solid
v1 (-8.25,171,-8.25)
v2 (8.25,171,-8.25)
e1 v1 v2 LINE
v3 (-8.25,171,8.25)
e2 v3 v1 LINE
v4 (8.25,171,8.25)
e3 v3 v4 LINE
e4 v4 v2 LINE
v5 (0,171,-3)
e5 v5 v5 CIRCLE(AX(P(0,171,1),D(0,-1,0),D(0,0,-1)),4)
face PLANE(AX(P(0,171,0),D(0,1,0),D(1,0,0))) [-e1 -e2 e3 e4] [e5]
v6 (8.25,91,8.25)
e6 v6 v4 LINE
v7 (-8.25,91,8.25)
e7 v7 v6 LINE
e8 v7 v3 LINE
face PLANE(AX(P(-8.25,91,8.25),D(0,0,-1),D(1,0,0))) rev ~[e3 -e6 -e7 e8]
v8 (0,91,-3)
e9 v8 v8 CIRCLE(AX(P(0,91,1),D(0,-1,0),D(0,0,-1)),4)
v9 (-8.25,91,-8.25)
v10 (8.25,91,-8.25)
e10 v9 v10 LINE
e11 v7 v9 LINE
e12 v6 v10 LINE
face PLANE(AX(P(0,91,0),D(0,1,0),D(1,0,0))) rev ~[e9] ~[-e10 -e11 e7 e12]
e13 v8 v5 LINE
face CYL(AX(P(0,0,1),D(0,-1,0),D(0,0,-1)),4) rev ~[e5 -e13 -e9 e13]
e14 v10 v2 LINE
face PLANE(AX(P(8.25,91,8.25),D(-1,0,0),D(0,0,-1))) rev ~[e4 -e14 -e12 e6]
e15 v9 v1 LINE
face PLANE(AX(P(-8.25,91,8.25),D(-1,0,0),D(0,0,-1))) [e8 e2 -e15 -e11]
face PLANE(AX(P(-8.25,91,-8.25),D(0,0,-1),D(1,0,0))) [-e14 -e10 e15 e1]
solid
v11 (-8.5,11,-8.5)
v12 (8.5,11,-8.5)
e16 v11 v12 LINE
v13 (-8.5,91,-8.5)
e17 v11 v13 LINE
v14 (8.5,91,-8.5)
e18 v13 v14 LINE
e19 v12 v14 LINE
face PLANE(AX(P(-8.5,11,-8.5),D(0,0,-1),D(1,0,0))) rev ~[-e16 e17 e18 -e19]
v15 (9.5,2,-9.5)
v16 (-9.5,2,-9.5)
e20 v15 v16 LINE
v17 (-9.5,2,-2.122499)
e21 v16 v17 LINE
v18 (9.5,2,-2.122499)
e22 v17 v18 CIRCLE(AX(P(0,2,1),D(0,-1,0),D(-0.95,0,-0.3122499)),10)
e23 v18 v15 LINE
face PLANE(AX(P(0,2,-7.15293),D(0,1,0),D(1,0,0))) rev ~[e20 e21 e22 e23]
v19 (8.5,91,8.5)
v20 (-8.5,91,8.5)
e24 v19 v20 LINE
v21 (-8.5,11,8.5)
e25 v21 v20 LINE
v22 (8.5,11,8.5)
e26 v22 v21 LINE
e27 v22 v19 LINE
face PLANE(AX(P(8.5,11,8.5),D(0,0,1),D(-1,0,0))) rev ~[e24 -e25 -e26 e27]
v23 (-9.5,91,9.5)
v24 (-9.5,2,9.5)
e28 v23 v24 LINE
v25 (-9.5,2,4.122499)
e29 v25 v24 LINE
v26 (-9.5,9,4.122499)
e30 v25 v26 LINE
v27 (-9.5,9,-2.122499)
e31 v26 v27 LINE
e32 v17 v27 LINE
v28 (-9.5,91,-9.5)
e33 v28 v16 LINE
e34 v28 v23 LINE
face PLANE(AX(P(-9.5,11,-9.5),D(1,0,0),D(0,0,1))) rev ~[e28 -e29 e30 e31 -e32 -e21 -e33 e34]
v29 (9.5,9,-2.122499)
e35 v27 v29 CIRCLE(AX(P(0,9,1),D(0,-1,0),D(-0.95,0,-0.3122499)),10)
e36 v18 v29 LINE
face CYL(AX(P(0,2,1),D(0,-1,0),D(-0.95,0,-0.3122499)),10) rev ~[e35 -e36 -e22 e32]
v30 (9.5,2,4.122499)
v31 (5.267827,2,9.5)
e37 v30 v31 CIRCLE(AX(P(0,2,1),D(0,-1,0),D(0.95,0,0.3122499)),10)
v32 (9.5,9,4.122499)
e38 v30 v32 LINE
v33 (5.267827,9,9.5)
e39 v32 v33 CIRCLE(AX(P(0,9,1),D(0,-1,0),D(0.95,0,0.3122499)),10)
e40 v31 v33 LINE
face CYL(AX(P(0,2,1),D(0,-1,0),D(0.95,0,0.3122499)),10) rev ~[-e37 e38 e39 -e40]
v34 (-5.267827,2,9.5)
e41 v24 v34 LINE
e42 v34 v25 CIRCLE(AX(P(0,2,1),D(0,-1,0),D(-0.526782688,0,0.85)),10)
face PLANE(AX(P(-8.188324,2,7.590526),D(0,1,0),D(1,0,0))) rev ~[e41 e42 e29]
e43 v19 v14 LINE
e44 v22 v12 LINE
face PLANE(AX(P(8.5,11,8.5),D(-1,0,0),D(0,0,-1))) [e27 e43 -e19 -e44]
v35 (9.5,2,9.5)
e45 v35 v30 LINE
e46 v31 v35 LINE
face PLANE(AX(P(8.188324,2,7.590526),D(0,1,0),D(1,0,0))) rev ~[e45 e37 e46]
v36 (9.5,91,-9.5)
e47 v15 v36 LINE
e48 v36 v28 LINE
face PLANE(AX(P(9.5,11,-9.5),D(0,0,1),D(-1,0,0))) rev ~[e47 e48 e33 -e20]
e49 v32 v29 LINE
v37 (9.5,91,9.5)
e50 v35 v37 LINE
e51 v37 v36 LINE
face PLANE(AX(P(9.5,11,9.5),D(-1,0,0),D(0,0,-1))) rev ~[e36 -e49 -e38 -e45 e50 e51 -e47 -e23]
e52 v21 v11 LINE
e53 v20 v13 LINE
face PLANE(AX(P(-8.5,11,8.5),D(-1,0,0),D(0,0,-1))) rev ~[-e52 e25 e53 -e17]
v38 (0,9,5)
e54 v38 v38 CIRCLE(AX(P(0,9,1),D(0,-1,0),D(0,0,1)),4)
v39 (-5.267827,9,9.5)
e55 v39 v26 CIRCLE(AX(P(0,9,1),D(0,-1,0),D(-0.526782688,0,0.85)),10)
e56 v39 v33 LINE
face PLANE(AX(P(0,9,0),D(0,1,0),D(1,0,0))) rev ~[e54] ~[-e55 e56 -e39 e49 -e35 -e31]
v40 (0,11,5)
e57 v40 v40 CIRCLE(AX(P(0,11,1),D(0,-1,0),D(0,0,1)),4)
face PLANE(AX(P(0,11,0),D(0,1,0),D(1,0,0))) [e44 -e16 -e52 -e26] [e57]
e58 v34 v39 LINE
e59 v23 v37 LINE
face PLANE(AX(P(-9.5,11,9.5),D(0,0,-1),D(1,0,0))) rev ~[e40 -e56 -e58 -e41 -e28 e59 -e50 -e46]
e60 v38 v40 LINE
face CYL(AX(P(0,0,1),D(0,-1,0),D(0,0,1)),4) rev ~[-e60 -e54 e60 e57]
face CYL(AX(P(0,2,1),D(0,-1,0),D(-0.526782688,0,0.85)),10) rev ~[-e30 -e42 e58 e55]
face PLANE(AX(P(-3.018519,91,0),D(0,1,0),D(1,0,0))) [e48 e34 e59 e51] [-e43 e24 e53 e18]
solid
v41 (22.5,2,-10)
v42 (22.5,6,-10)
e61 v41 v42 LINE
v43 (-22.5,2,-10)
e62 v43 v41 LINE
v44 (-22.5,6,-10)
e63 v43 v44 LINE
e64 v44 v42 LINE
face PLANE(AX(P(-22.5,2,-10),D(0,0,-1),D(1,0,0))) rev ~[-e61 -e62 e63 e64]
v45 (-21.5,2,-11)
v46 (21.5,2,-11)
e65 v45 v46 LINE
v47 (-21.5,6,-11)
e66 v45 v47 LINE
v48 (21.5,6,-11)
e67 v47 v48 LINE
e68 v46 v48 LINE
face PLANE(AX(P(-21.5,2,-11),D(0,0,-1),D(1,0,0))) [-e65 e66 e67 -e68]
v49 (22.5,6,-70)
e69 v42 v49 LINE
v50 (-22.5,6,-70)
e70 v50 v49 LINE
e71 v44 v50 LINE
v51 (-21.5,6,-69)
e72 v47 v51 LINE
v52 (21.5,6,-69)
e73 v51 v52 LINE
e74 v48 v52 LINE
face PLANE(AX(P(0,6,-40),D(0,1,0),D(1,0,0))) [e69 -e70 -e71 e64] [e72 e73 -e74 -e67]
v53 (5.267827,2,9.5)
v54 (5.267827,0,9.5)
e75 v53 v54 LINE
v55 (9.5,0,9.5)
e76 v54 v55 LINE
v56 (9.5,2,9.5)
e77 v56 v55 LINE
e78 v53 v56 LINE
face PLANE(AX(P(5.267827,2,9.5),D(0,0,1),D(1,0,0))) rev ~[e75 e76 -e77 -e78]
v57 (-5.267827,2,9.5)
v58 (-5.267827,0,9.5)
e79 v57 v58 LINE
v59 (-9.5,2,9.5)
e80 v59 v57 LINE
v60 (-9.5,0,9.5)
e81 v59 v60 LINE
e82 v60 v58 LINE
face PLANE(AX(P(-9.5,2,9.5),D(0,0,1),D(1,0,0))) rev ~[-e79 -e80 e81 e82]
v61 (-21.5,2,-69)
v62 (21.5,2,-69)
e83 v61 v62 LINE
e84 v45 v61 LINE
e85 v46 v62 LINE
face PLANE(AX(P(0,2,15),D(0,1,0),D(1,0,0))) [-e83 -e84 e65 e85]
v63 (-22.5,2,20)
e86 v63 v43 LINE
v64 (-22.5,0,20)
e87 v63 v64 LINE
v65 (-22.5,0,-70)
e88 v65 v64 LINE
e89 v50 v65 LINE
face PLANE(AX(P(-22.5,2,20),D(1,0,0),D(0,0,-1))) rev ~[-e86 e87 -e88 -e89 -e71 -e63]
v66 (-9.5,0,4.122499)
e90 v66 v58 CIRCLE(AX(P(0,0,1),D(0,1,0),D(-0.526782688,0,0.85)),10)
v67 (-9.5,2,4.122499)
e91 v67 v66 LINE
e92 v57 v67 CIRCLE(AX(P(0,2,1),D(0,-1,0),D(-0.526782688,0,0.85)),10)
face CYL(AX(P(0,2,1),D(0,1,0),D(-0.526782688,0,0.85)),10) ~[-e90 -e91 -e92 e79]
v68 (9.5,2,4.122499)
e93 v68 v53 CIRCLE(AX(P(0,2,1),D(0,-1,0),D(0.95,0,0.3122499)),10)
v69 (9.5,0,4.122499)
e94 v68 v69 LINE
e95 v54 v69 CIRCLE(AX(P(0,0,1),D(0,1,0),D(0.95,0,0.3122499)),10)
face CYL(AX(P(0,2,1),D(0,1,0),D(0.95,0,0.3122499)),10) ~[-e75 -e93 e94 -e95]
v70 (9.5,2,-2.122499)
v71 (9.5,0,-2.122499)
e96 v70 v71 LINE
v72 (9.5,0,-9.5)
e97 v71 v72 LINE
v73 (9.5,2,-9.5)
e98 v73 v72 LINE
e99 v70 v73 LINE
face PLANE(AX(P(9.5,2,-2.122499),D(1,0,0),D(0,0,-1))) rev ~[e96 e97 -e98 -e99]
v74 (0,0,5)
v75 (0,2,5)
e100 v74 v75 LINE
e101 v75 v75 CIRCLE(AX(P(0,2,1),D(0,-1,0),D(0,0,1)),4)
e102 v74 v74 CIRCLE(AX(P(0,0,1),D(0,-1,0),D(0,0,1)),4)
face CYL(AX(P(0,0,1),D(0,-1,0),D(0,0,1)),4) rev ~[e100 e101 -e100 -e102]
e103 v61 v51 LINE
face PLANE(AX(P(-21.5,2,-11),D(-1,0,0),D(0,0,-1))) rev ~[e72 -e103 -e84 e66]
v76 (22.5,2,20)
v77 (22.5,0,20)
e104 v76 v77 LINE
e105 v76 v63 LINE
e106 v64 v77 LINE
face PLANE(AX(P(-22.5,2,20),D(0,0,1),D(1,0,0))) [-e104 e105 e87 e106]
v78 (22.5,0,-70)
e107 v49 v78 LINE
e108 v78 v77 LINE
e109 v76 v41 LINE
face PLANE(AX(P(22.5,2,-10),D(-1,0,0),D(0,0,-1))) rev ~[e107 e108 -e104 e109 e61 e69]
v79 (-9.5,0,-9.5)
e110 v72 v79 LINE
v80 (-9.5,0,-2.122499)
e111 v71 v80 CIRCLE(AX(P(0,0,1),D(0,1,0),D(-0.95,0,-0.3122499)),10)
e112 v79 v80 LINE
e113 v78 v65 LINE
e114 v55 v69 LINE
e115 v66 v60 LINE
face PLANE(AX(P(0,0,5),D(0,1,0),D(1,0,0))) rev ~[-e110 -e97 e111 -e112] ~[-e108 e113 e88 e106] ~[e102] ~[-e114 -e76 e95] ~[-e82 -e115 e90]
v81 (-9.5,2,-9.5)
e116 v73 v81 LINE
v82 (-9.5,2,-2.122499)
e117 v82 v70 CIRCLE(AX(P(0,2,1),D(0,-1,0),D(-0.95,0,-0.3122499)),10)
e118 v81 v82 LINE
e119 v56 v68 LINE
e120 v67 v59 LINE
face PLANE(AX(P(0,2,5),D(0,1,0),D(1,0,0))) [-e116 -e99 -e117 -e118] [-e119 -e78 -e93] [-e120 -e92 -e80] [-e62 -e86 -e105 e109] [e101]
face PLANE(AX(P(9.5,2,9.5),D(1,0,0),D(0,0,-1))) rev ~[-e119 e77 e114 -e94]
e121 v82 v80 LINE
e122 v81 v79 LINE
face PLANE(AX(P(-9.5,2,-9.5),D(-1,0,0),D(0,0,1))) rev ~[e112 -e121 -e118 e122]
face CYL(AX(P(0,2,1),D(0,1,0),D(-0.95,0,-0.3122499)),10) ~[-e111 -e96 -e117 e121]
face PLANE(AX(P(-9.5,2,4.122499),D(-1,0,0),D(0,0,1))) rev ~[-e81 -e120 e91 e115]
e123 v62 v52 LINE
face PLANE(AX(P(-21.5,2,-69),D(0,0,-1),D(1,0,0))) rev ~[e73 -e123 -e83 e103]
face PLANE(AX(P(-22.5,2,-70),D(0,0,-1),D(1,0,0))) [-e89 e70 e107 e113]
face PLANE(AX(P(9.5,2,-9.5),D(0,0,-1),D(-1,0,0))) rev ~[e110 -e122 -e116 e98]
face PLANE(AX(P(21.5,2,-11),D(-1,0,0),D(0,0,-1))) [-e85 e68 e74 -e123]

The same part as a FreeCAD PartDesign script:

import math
import FreeCAD as App
import Part
import Sketcher

V = App.Vector
Q = App.Units.Quantity


def add_polygon(sketch, points):
    """Adds a closed chain of lines whose ends are joined by coincident constraints."""
    first, n = sketch.GeometryCount, len(points)
    for a, b in zip(points, points[1:] + points[:1]):
        sketch.addGeometry(Part.LineSegment(App.Vector(*a, 0), App.Vector(*b, 0)), False)
    for i in range(n):
        sketch.addConstraint(Sketcher.Constraint("Coincident", first + i, 2, first + (i + 1) % n, 1))

doc = App.newDocument("Part")
params = doc.addObject("Spreadsheet::Sheet", "Params")
for row, (alias, value) in enumerate([
    ("sketch1_width", "45 mm"),
    ("sketch1_width2", "20 mm"),
    ("sketch1_height", "60 mm"),
    ("sketch1_height2", "10 mm"),
    ("pad1_length", "2 mm"),
    ("sketch2_width", "45 mm"),
    ("sketch2_width2", "43 mm"),
    ("sketch2_height", "60 mm"),
    ("sketch2_height2", "58 mm"),
    ("pad2_length", "4 mm"),
    ("sketch3_width", "45 mm"),
    ("sketch3_height", "30 mm"),
    ("pad3_length", "2 mm"),
    ("sketch4_radius", "10 mm"),
    ("sketch4_width", "19 mm"),
    ("pocket1_length", "4 mm"),
    ("sketch5_radius", "10 mm"),
    ("sketch5_width", "19 mm"),
    ("pad4_length", "7 mm"),
    ("sketch6_radius", "10 mm"),
    ("pad5_length", "7 mm"),
    ("sketch7_radius", "10 mm"),
    ("pad6_length", "7 mm"),
    ("sketch8_width", "19 mm"),
    ("pad7_length", "2 mm"),
    ("sketch9_diameter", "8 mm"),
    ("pad8_length", "19 mm"),
    ("sketch10_width", "19 mm"),
    ("sketch10_width2", "17 mm"),
    ("pad9_length", "80 mm"),
    ("sketch11_width", "16.5 mm"),
    ("pad10_length", "80 mm"),
    ("sketch12_diameter", "8 mm"),
    ("pocket2_length", "193 mm"),
], start=1):
    params.set(f"A{row}", alias)
    params.set(f"B{row}", "=" + value)
    params.setAlias(f"B{row}", alias)

body = doc.addObject("PartDesign::Body", "Body")

# Sketch on XZ plane
sketch1 = body.newObject("Sketcher::SketchObject", "Sketch")
sketch1.AttachmentSupport = (doc.getObject("XZ_Plane"), [""])
sketch1.MapMode = "FlatFace"
add_polygon(sketch1, [(22.5, -10), (22.5, -70), (-22.5, -70), (-22.5, -10), (-10, 10), (-10, 20), (10, 20), (10, 10)])  # lines 0-7
sketch1.addConstraint(Sketcher.Constraint("Vertical", 0))
sketch1.addConstraint(Sketcher.Constraint("Horizontal", 1))
sketch1.addConstraint(Sketcher.Constraint("Vertical", 2))
sketch1.addConstraint(Sketcher.Constraint("Vertical", 4))
sketch1.addConstraint(Sketcher.Constraint("Horizontal", 5))
sketch1.addConstraint(Sketcher.Constraint("Vertical", 6))
sketch1.addConstraint(Sketcher.Constraint("Symmetric", 3, 2, 6, 2, -2))
sketch1.addConstraint(Sketcher.Constraint("Symmetric", 2, 2, 7, 2, -2))
sketch1.addConstraint(Sketcher.Constraint("DistanceX", 1, 2, 1, 1, Q("45 mm")))
sketch1.addConstraint(Sketcher.Constraint("DistanceX", 5, 1, 5, 2, Q("20 mm")))
sketch1.addConstraint(Sketcher.Constraint("DistanceY", 0, 2, 0, 1, Q("60 mm")))
sketch1.addConstraint(Sketcher.Constraint("DistanceY", 4, 1, 4, 2, Q("10 mm")))
sketch1.addConstraint(Sketcher.Constraint("DistanceY", 0, 2, -1, 1, Q("70 mm")))
sketch1.addConstraint(Sketcher.Constraint("DistanceY", -1, 1, 3, 2, Q("10 mm")))
sketch1.setExpression("Constraints[16]", "Params.sketch1_width")
sketch1.setExpression("Constraints[17]", "Params.sketch1_width2")
sketch1.setExpression("Constraints[18]", "Params.sketch1_height")
sketch1.setExpression("Constraints[19]", "Params.sketch1_height2")
pad1 = body.newObject("PartDesign::Pad", "Pad")
pad1.Profile = sketch1
pad1.setExpression("Length", "Params.pad1_length")
pad1.Reversed = True

# Sketch on XZ plane
sketch2 = body.newObject("Sketcher::SketchObject", "Sketch001")
sketch2.AttachmentSupport = (doc.getObject("XZ_Plane"), [""])
sketch2.MapMode = "FlatFace"
sketch2.AttachmentOffset = App.Placement(V(0, 0, -2), App.Rotation())
add_polygon(sketch2, [(-22.5, -70), (-22.5, -10), (22.5, -10), (22.5, -70)])  # lines 0-3
add_polygon(sketch2, [(21.5, -11), (-21.5, -11), (-21.5, -69), (21.5, -69)])  # lines 4-7
sketch2.addConstraint(Sketcher.Constraint("Vertical", 0))
sketch2.addConstraint(Sketcher.Constraint("Horizontal", 1))
sketch2.addConstraint(Sketcher.Constraint("Vertical", 2))
sketch2.addConstraint(Sketcher.Constraint("Horizontal", 3))
sketch2.addConstraint(Sketcher.Constraint("Horizontal", 4))
sketch2.addConstraint(Sketcher.Constraint("Vertical", 5))
sketch2.addConstraint(Sketcher.Constraint("Horizontal", 6))
sketch2.addConstraint(Sketcher.Constraint("Vertical", 7))
sketch2.addConstraint(Sketcher.Constraint("DistanceX", 1, 1, 1, 2, Q("45 mm")))
sketch2.addConstraint(Sketcher.Constraint("DistanceX", 4, 2, 4, 1, Q("43 mm")))
sketch2.addConstraint(Sketcher.Constraint("DistanceY", 0, 1, 0, 2, Q("60 mm")))
sketch2.addConstraint(Sketcher.Constraint("DistanceY", 5, 2, 5, 1, Q("58 mm")))
sketch2.addConstraint(Sketcher.Constraint("DistanceY", 0, 2, -1, 1, Q("10 mm")))
sketch2.addConstraint(Sketcher.Constraint("DistanceY", 4, 2, -1, 1, Q("11 mm")))
sketch2.addConstraint(Sketcher.Constraint("DistanceX", 0, 2, 4, 2, Q("1 mm")))
sketch2.addConstraint(Sketcher.Constraint("DistanceX", 0, 2, -1, 1, Q("22.5 mm")))
sketch2.setExpression("Constraints[16]", "Params.sketch2_width")
sketch2.setExpression("Constraints[17]", "Params.sketch2_width2")
sketch2.setExpression("Constraints[18]", "Params.sketch2_height")
sketch2.setExpression("Constraints[19]", "Params.sketch2_height2")
pad2 = body.newObject("PartDesign::Pad", "Pad001")
pad2.Profile = sketch2
pad2.setExpression("Length", "Params.pad2_length")
pad2.Reversed = True

# Sketch on XZ plane
sketch3 = body.newObject("Sketcher::SketchObject", "Sketch002")
sketch3.AttachmentSupport = (doc.getObject("XZ_Plane"), [""])
sketch3.MapMode = "FlatFace"
sketch3.AttachmentOffset = App.Placement(V(0, 0, -2), App.Rotation())
add_polygon(sketch3, [(-22.5, -10), (-22.5, 20), (22.5, 20), (22.5, -10)])  # lines 0-3
sketch3.addConstraint(Sketcher.Constraint("Vertical", 0))
sketch3.addConstraint(Sketcher.Constraint("Horizontal", 1))
sketch3.addConstraint(Sketcher.Constraint("Vertical", 2))
sketch3.addConstraint(Sketcher.Constraint("Horizontal", 3))
sketch3.addConstraint(Sketcher.Constraint("DistanceX", 1, 1, 1, 2, Q("45 mm")))
sketch3.addConstraint(Sketcher.Constraint("DistanceY", 0, 1, 0, 2, Q("30 mm")))
sketch3.addConstraint(Sketcher.Constraint("DistanceY", -1, 1, 0, 2, Q("20 mm")))
sketch3.addConstraint(Sketcher.Constraint("DistanceX", 0, 2, -1, 1, Q("22.5 mm")))
sketch3.setExpression("Constraints[8]", "Params.sketch3_width")
sketch3.setExpression("Constraints[9]", "Params.sketch3_height")
pad3 = body.newObject("PartDesign::Pad", "Pad002")
pad3.Profile = sketch3
pad3.setExpression("Length", "Params.pad3_length")

# Sketch on XZ plane
sketch4 = body.newObject("Sketcher::SketchObject", "Sketch003")
sketch4.AttachmentSupport = (doc.getObject("XZ_Plane"), [""])
sketch4.MapMode = "FlatFace"
sketch4.AttachmentOffset = App.Placement(V(0, 0, -2), App.Rotation())
sketch4.addGeometry(Part.LineSegment(V(9.5, -9.5, 0), V(-9.5, -9.5, 0)), False)
sketch4.addGeometry(Part.LineSegment(V(-9.5, -9.5, 0), V(-9.5, -2.122499, 0)), False)
sketch4.addGeometry(Part.ArcOfCircle(Part.Circle(V(0, 1, 0), V(0, 0, 1), 10), math.radians(-161.805128), math.radians(-18.194872)), False)
sketch4.addGeometry(Part.LineSegment(V(9.5, -2.122499, 0), V(9.5, -9.5, 0)), False)
sketch4.addGeometry(Part.ArcOfCircle(Part.Circle(V(0, 1, 0), V(0, 0, 1), 10), math.radians(121.788331), math.radians(161.805128)), False)
sketch4.addGeometry(Part.LineSegment(V(-9.5, 4.122499, 0), V(-9.5, 9.5, 0)), False)
sketch4.addGeometry(Part.LineSegment(V(-9.5, 9.5, 0), V(-5.267827, 9.5, 0)), False)
sketch4.addGeometry(Part.LineSegment(V(9.5, 9.5, 0), V(9.5, 4.122499, 0)), False)
sketch4.addGeometry(Part.ArcOfCircle(Part.Circle(V(0, 1, 0), V(0, 0, 1), 10), math.radians(18.194872), math.radians(58.211669)), False)
sketch4.addGeometry(Part.LineSegment(V(5.267827, 9.5, 0), V(9.5, 9.5, 0)), False)
sketch4.addConstraint(Sketcher.Constraint("Coincident", 0, 2, 1, 1))
sketch4.addConstraint(Sketcher.Constraint("Coincident", 1, 2, 2, 1))
sketch4.addConstraint(Sketcher.Constraint("Coincident", 2, 2, 3, 1))
sketch4.addConstraint(Sketcher.Constraint("Coincident", 3, 2, 0, 1))
sketch4.addConstraint(Sketcher.Constraint("Coincident", 4, 2, 5, 1))
sketch4.addConstraint(Sketcher.Constraint("Coincident", 5, 2, 6, 1))
sketch4.addConstraint(Sketcher.Constraint("Coincident", 6, 2, 4, 1))
sketch4.addConstraint(Sketcher.Constraint("Coincident", 7, 2, 8, 1))
sketch4.addConstraint(Sketcher.Constraint("Coincident", 8, 2, 9, 1))
sketch4.addConstraint(Sketcher.Constraint("Coincident", 9, 2, 7, 1))
sketch4.addConstraint(Sketcher.Constraint("Horizontal", 0))
sketch4.addConstraint(Sketcher.Constraint("Vertical", 1))
sketch4.addConstraint(Sketcher.Constraint("Vertical", 3))
sketch4.addConstraint(Sketcher.Constraint("Vertical", 5))
sketch4.addConstraint(Sketcher.Constraint("Horizontal", 6))
sketch4.addConstraint(Sketcher.Constraint("Vertical", 7))
sketch4.addConstraint(Sketcher.Constraint("Horizontal", 9))
sketch4.addConstraint(Sketcher.Constraint("Coincident", 4, 3, 2, 3))
sketch4.addConstraint(Sketcher.Constraint("Coincident", 8, 3, 2, 3))
sketch4.addConstraint(Sketcher.Constraint("Equal", 2, 4))
sketch4.addConstraint(Sketcher.Constraint("Equal", 4, 8))
sketch4.addConstraint(Sketcher.Constraint("Symmetric", 3, 2, 5, 2, -1, 1))
sketch4.addConstraint(Sketcher.Constraint("Symmetric", 0, 2, 9, 2, -1, 1))
sketch4.addConstraint(Sketcher.Constraint("Symmetric", 1, 2, 2, 2, -2))
sketch4.addConstraint(Sketcher.Constraint("Radius", 2, Q("10 mm")))
sketch4.addConstraint(Sketcher.Constraint("DistanceX", 0, 2, 0, 1, Q("19 mm")))
sketch4.addConstraint(Sketcher.Constraint("DistanceY", -1, 1, 2, 3, Q("1 mm")))
sketch4.addConstraint(Sketcher.Constraint("DistanceY", 0, 2, -1, 1, Q("9.5 mm")))
sketch4.setExpression("Constraints[24]", "Params.sketch4_radius")
sketch4.setExpression("Constraints[25]", "Params.sketch4_width")
pocket1 = body.newObject("PartDesign::Pocket", "Pocket")
pocket1.Profile = sketch4
pocket1.setExpression("Length", "Params.pocket1_length")
pocket1.Reversed = True
body2 = doc.addObject("PartDesign::Body", "Body001")

# Sketch on XZ plane
sketch5 = body2.newObject("Sketcher::SketchObject", "Sketch004")
sketch5.AttachmentSupport = (doc.getObject("XZ_Plane001"), [""])
sketch5.MapMode = "FlatFace"
sketch5.AttachmentOffset = App.Placement(V(0, 0, -2), App.Rotation())
sketch5.addGeometry(Part.LineSegment(V(9.5, -2.122499, 0), V(9.5, -9.5, 0)), False)
sketch5.addGeometry(Part.LineSegment(V(9.5, -9.5, 0), V(-9.5, -9.5, 0)), False)
sketch5.addGeometry(Part.LineSegment(V(-9.5, -9.5, 0), V(-9.5, -2.122499, 0)), False)
sketch5.addGeometry(Part.ArcOfCircle(Part.Circle(V(0, 1, 0), V(0, 0, 1), 10), math.radians(-161.805128), math.radians(-18.194872)), False)
sketch5.addConstraint(Sketcher.Constraint("Coincident", 0, 2, 1, 1))
sketch5.addConstraint(Sketcher.Constraint("Coincident", 1, 2, 2, 1))
sketch5.addConstraint(Sketcher.Constraint("Coincident", 2, 2, 3, 1))
sketch5.addConstraint(Sketcher.Constraint("Coincident", 3, 2, 0, 1))
sketch5.addConstraint(Sketcher.Constraint("Vertical", 0))
sketch5.addConstraint(Sketcher.Constraint("Horizontal", 1))
sketch5.addConstraint(Sketcher.Constraint("Vertical", 2))
sketch5.addConstraint(Sketcher.Constraint("Symmetric", 2, 2, 3, 2, -2))
sketch5.addConstraint(Sketcher.Constraint("Radius", 3, Q("10 mm")))
sketch5.addConstraint(Sketcher.Constraint("DistanceX", 1, 2, 1, 1, Q("19 mm")))
sketch5.addConstraint(Sketcher.Constraint("DistanceY", -1, 1, 3, 3, Q("1 mm")))
sketch5.addConstraint(Sketcher.Constraint("DistanceY", 0, 2, -1, 1, Q("9.5 mm")))
sketch5.setExpression("Constraints[8]", "Params.sketch5_radius")
sketch5.setExpression("Constraints[9]", "Params.sketch5_width")
pad4 = body2.newObject("PartDesign::Pad", "Pad003")
pad4.Profile = sketch5
pad4.setExpression("Length", "Params.pad4_length")
pad4.Reversed = True
body3 = doc.addObject("PartDesign::Body", "Body002")

# Sketch on XZ plane
sketch6 = body3.newObject("Sketcher::SketchObject", "Sketch005")
sketch6.AttachmentSupport = (doc.getObject("XZ_Plane002"), [""])
sketch6.MapMode = "FlatFace"
sketch6.AttachmentOffset = App.Placement(V(0, 0, -2), App.Rotation())
sketch6.addGeometry(Part.LineSegment(V(-9.5, 9.5, 0), V(-5.267827, 9.5, 0)), False)
sketch6.addGeometry(Part.ArcOfCircle(Part.Circle(V(0, 1, 0), V(0, 0, 1), 10), math.radians(121.788331), math.radians(161.805128)), False)
sketch6.addGeometry(Part.LineSegment(V(-9.5, 4.122499, 0), V(-9.5, 9.5, 0)), False)
sketch6.addConstraint(Sketcher.Constraint("Coincident", 0, 2, 1, 1))
sketch6.addConstraint(Sketcher.Constraint("Coincident", 1, 2, 2, 1))
sketch6.addConstraint(Sketcher.Constraint("Coincident", 2, 2, 0, 1))
sketch6.addConstraint(Sketcher.Constraint("Horizontal", 0))
sketch6.addConstraint(Sketcher.Constraint("Vertical", 2))
sketch6.addConstraint(Sketcher.Constraint("PointOnObject", 1, 3, -2))
sketch6.addConstraint(Sketcher.Constraint("Radius", 1, Q("10 mm")))
sketch6.addConstraint(Sketcher.Constraint("DistanceY", -1, 1, 1, 3, Q("1 mm")))
sketch6.addConstraint(Sketcher.Constraint("DistanceY", -1, 1, 0, 2, Q("9.5 mm")))
sketch6.addConstraint(Sketcher.Constraint("DistanceX", 1, 2, -1, 1, Q("9.5 mm")))
sketch6.setExpression("Constraints[6]", "Params.sketch6_radius")
pad5 = body3.newObject("PartDesign::Pad", "Pad004")
pad5.Profile = sketch6
pad5.setExpression("Length", "Params.pad5_length")
pad5.Reversed = True
body4 = doc.addObject("PartDesign::Body", "Body003")

# Sketch on XZ plane
sketch7 = body4.newObject("Sketcher::SketchObject", "Sketch006")
sketch7.AttachmentSupport = (doc.getObject("XZ_Plane003"), [""])
sketch7.MapMode = "FlatFace"
sketch7.AttachmentOffset = App.Placement(V(0, 0, -2), App.Rotation())
sketch7.addGeometry(Part.LineSegment(V(9.5, 9.5, 0), V(9.5, 4.122499, 0)), False)
sketch7.addGeometry(Part.ArcOfCircle(Part.Circle(V(0, 1, 0), V(0, 0, 1), 10), math.radians(18.194872), math.radians(58.211669)), False)
sketch7.addGeometry(Part.LineSegment(V(5.267827, 9.5, 0), V(9.5, 9.5, 0)), False)
sketch7.addConstraint(Sketcher.Constraint("Coincident", 0, 2, 1, 1))
sketch7.addConstraint(Sketcher.Constraint("Coincident", 1, 2, 2, 1))
sketch7.addConstraint(Sketcher.Constraint("Coincident", 2, 2, 0, 1))
sketch7.addConstraint(Sketcher.Constraint("Vertical", 0))
sketch7.addConstraint(Sketcher.Constraint("Horizontal", 2))
sketch7.addConstraint(Sketcher.Constraint("PointOnObject", 1, 3, -2))
sketch7.addConstraint(Sketcher.Constraint("Radius", 1, Q("10 mm")))
sketch7.addConstraint(Sketcher.Constraint("DistanceY", -1, 1, 1, 3, Q("1 mm")))
sketch7.addConstraint(Sketcher.Constraint("DistanceX", -1, 1, 0, 2, Q("9.5 mm")))
sketch7.addConstraint(Sketcher.Constraint("DistanceY", -1, 1, 1, 2, Q("9.5 mm")))
sketch7.setExpression("Constraints[6]", "Params.sketch7_radius")
pad6 = body4.newObject("PartDesign::Pad", "Pad005")
pad6.Profile = sketch7
pad6.setExpression("Length", "Params.pad6_length")
pad6.Reversed = True
body2.AllowCompound = True
doc.recompute()

boolean = body2.newObject("PartDesign::Boolean", "Boolean")
boolean.Type = "Fuse"
boolean.addObjects([body3])
doc.recompute()

boolean2 = body2.newObject("PartDesign::Boolean", "Boolean001")
boolean2.Type = "Fuse"
boolean2.addObjects([body4])

# Sketch on XZ plane
sketch8 = body2.newObject("Sketcher::SketchObject", "Sketch007")
sketch8.AttachmentSupport = (doc.getObject("XZ_Plane001"), [""])
sketch8.MapMode = "FlatFace"
sketch8.AttachmentOffset = App.Placement(V(0, 0, -9), App.Rotation())
add_polygon(sketch8, [(-9.5, -9.5), (-9.5, 9.5), (9.5, 9.5), (9.5, -9.5)])  # lines 0-3
sketch8.addConstraint(Sketcher.Constraint("Vertical", 0))
sketch8.addConstraint(Sketcher.Constraint("Horizontal", 1))
sketch8.addConstraint(Sketcher.Constraint("Vertical", 2))
sketch8.addConstraint(Sketcher.Constraint("Horizontal", 3))
sketch8.addConstraint(Sketcher.Constraint("Symmetric", 0, 2, 2, 2, -1, 1))
sketch8.addConstraint(Sketcher.Constraint("Equal", 3, 0))
sketch8.addConstraint(Sketcher.Constraint("DistanceX", 1, 1, 1, 2, Q("19 mm")))
sketch8.setExpression("Constraints[10]", "Params.sketch8_width")
pad7 = body2.newObject("PartDesign::Pad", "Pad006")
pad7.Profile = sketch8
pad7.setExpression("Length", "Params.pad7_length")
pad7.Reversed = True
body5 = doc.addObject("PartDesign::Body", "Body004")

# Sketch on XZ plane
sketch9 = body5.newObject("Sketcher::SketchObject", "Sketch008")
sketch9.AttachmentSupport = (doc.getObject("XZ_Plane004"), [""])
sketch9.MapMode = "FlatFace"
sketch9.addGeometry(Part.Circle(V(0, 1, 0), V(0, 0, 1), 4), False)
sketch9.addConstraint(Sketcher.Constraint("PointOnObject", 0, 3, -2))
sketch9.addConstraint(Sketcher.Constraint("Diameter", 0, Q("8 mm")))
sketch9.addConstraint(Sketcher.Constraint("DistanceY", -1, 1, 0, 3, Q("1 mm")))
sketch9.setExpression("Constraints[1]", "Params.sketch9_diameter")
pad8 = body5.newObject("PartDesign::Pad", "Pad007")
pad8.Profile = sketch9
pad8.setExpression("Length", "Params.pad8_length")
pad8.Reversed = True
doc.recompute()

body6 = doc.addObject("PartDesign::Body", "Body005")
body6.BaseFeature = body5
boolean3 = body.newObject("PartDesign::Boolean", "Boolean002")
boolean3.Type = "Cut"
boolean3.addObjects([body6])
doc.recompute()

boolean4 = body2.newObject("PartDesign::Boolean", "Boolean003")
boolean4.Type = "Cut"
boolean4.addObjects([body5])

# Sketch on XZ plane
sketch10 = body2.newObject("Sketcher::SketchObject", "Sketch009")
sketch10.AttachmentSupport = (doc.getObject("XZ_Plane001"), [""])
sketch10.MapMode = "FlatFace"
sketch10.AttachmentOffset = App.Placement(V(0, 0, -11), App.Rotation())
add_polygon(sketch10, [(-9.5, 9.5), (9.5, 9.5), (9.5, -9.5), (-9.5, -9.5)])  # lines 0-3
add_polygon(sketch10, [(8.5, -8.5), (8.5, 8.5), (-8.5, 8.5), (-8.5, -8.5)])  # lines 4-7
sketch10.addConstraint(Sketcher.Constraint("Horizontal", 0))
sketch10.addConstraint(Sketcher.Constraint("Vertical", 1))
sketch10.addConstraint(Sketcher.Constraint("Horizontal", 2))
sketch10.addConstraint(Sketcher.Constraint("Vertical", 3))
sketch10.addConstraint(Sketcher.Constraint("Vertical", 4))
sketch10.addConstraint(Sketcher.Constraint("Horizontal", 5))
sketch10.addConstraint(Sketcher.Constraint("Vertical", 6))
sketch10.addConstraint(Sketcher.Constraint("Horizontal", 7))
sketch10.addConstraint(Sketcher.Constraint("Symmetric", 0, 2, 2, 2, -1, 1))
sketch10.addConstraint(Sketcher.Constraint("Symmetric", 4, 2, 6, 2, -1, 1))
sketch10.addConstraint(Sketcher.Constraint("Equal", 2, 1))
sketch10.addConstraint(Sketcher.Constraint("Equal", 7, 4))
sketch10.addConstraint(Sketcher.Constraint("DistanceX", 0, 1, 0, 2, Q("19 mm")))
sketch10.addConstraint(Sketcher.Constraint("DistanceX", 5, 2, 5, 1, Q("17 mm")))
sketch10.setExpression("Constraints[20]", "Params.sketch10_width")
sketch10.setExpression("Constraints[21]", "Params.sketch10_width2")
pad9 = body2.newObject("PartDesign::Pad", "Pad008")
pad9.Profile = sketch10
pad9.setExpression("Length", "Params.pad9_length")
pad9.Reversed = True
body7 = doc.addObject("PartDesign::Body", "Body006")

# Sketch on XZ plane
sketch11 = body7.newObject("Sketcher::SketchObject", "Sketch010")
sketch11.AttachmentSupport = (doc.getObject("XZ_Plane006"), [""])
sketch11.MapMode = "FlatFace"
sketch11.AttachmentOffset = App.Placement(V(0, 0, -91), App.Rotation())
add_polygon(sketch11, [(-8.25, -8.25), (-8.25, 8.25), (8.25, 8.25), (8.25, -8.25)])  # lines 0-3
sketch11.addConstraint(Sketcher.Constraint("Vertical", 0))
sketch11.addConstraint(Sketcher.Constraint("Horizontal", 1))
sketch11.addConstraint(Sketcher.Constraint("Vertical", 2))
sketch11.addConstraint(Sketcher.Constraint("Horizontal", 3))
sketch11.addConstraint(Sketcher.Constraint("Symmetric", 0, 2, 2, 2, -1, 1))
sketch11.addConstraint(Sketcher.Constraint("Equal", 3, 0))
sketch11.addConstraint(Sketcher.Constraint("DistanceX", 1, 1, 1, 2, Q("16.5 mm")))
sketch11.setExpression("Constraints[10]", "Params.sketch11_width")
pad10 = body7.newObject("PartDesign::Pad", "Pad009")
pad10.Profile = sketch11
pad10.setExpression("Length", "Params.pad10_length")
pad10.Reversed = True

# Sketch on XZ plane
sketch12 = body7.newObject("Sketcher::SketchObject", "Sketch011")
sketch12.AttachmentSupport = (doc.getObject("XZ_Plane006"), [""])
sketch12.MapMode = "FlatFace"
sketch12.addGeometry(Part.Circle(V(0, 1, 0), V(0, 0, 1), 4), False)
sketch12.addConstraint(Sketcher.Constraint("PointOnObject", 0, 3, -2))
sketch12.addConstraint(Sketcher.Constraint("Diameter", 0, Q("8 mm")))
sketch12.addConstraint(Sketcher.Constraint("DistanceY", -1, 1, 0, 3, Q("1 mm")))
sketch12.setExpression("Constraints[1]", "Params.sketch12_diameter")
pocket2 = body7.newObject("PartDesign::Pocket", "Pocket001")
pocket2.Profile = sketch12
pocket2.setExpression("Length", "Params.pocket2_length")

doc.recompute()
